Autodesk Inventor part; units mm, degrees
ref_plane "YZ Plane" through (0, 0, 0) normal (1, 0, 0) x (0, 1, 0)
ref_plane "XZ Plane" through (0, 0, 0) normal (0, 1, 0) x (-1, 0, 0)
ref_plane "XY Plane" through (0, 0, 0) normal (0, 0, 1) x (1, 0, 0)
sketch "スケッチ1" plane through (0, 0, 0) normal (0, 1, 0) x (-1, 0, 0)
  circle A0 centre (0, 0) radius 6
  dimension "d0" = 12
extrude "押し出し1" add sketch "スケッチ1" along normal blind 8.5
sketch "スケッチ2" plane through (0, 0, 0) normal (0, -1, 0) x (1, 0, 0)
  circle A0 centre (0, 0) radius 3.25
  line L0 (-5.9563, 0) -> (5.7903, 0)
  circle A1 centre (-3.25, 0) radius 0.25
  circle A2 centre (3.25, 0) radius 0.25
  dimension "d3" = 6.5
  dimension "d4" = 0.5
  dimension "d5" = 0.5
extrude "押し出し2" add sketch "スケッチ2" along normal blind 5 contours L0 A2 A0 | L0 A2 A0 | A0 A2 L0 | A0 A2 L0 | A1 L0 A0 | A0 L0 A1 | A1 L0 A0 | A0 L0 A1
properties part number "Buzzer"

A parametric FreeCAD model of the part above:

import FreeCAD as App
import Part
import Sketcher
Q = App.Units.Quantity

doc = App.newDocument("Part")
body = doc.addObject("PartDesign::Body", "Body")

sketch1 = body.newObject("Sketcher::SketchObject", "Sketch")
sketch1.AttachmentSupport = (doc.getObject("XZ_Plane"), [""])
sketch1.MapMode = "FlatFace"
sketch1.addGeometry(Part.Circle(App.Vector(0, 0, 0), App.Vector(0, 0, 1), 6), False)
sketch1.addConstraint([
    Sketcher.Constraint("Coincident", 0, 3, -1, 1),
    Sketcher.Constraint("Diameter", 0, Q("12 mm")),
])
pad1 = body.newObject("PartDesign::Pad", "Pad")
pad1.Profile = sketch1
pad1.Length = 8.5
pad1.Reversed = True

sketch2 = body.newObject("Sketcher::SketchObject", "Sketch001")
sketch2.AttachmentSupport = (doc.getObject("XZ_Plane"), [""])
sketch2.MapMode = "FlatFace"
sketch2.addGeometry([
    Part.Circle(App.Vector(3.25, 0, 0), App.Vector(0, 0, 1), 0.25),
    Part.Circle(App.Vector(-3.25, 0, 0), App.Vector(0, 0, 1), 0.25),
], False)
sketch2.addConstraint([
    Sketcher.Constraint("Equal", 0, 1),
    Sketcher.Constraint("Symmetric", 0, 3, 1, 3, -1, 1),
    Sketcher.Constraint("PointOnObject", 0, 3, -1),
    Sketcher.Constraint("Diameter", 0, Q("0.5 mm")),
    Sketcher.Constraint("DistanceX", 1, 3, 0, 3, Q("6.5 mm")),
])
pad2 = body.newObject("PartDesign::Pad", "Pad001")
pad2.Profile = sketch2
pad2.Length = 5

doc.recompute()
